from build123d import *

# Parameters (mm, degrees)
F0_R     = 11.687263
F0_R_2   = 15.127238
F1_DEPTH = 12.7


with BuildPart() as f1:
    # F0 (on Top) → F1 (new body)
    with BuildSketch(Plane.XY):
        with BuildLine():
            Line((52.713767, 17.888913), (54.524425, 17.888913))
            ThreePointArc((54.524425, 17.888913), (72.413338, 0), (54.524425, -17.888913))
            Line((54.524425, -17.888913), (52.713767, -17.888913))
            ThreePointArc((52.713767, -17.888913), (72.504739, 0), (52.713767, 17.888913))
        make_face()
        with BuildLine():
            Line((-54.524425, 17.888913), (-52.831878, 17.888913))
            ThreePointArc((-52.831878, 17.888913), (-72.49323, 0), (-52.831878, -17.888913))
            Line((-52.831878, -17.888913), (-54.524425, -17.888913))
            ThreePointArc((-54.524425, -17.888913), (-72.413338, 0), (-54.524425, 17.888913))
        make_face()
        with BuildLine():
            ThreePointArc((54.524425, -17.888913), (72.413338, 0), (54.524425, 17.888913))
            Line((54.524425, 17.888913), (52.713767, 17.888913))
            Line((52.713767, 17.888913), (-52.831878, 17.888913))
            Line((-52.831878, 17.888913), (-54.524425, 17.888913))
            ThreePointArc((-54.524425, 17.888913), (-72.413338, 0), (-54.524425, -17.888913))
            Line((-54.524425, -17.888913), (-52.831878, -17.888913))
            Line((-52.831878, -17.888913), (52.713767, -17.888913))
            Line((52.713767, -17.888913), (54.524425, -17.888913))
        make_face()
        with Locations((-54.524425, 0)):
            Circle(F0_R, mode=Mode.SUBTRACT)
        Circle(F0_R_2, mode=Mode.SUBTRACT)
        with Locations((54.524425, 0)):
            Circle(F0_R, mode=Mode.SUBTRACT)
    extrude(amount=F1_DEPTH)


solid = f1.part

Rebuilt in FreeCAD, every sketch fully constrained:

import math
import FreeCAD as App
import Part
import Sketcher
from FreeCAD import Vector
Q = App.Units.Quantity

doc = App.newDocument("Part")
body = doc.addObject("PartDesign::Body", "Body")

sketch1 = body.newObject("Sketcher::SketchObject", "Sketch")
sketch1.AttachmentSupport = (doc.getObject("XY_Plane"), [""])
sketch1.MapMode = "FlatFace"
sketch1.addGeometry([
    Part.ArcOfCircle(Part.Circle(Vector(54.524425, 0, 0), Vector(0, 0, 1), 17.980314), math.radians(-95.77961), math.radians(95.77961)),
    Part.LineSegment(Vector(52.713767, 17.888913, 0), Vector(-52.831878, 17.888913, 0)),
    Part.ArcOfCircle(Part.Circle(Vector(-54.524426, 0, 0), Vector(0, 0, 1), 17.968804), math.radians(84.595087), math.radians(275.404913)),
    Part.LineSegment(Vector(-52.831878, -17.888913, 0), Vector(52.713767, -17.888913, 0)),
    Part.Circle(Vector(-54.524425, 0, 0), Vector(0, 0, 1), 11.687263),
    Part.Circle(Vector(0, 0, 0), Vector(0, 0, 1), 15.127238),
    Part.Circle(Vector(54.524425, 0, 0), Vector(0, 0, 1), 11.687263),
], False)
sketch1.addConstraint([
    Sketcher.Constraint("Coincident", 0, 2, 1, 1),
    Sketcher.Constraint("Coincident", 1, 2, 2, 1),
    Sketcher.Constraint("Coincident", 2, 2, 3, 1),
    Sketcher.Constraint("Coincident", 3, 2, 0, 1),
    Sketcher.Constraint("Horizontal", 1),
    Sketcher.Constraint("Horizontal", 3),
    Sketcher.Constraint("Coincident", 5, 3, -1, 1),
    Sketcher.Constraint("Coincident", 4, 3, 2, 3),
    Sketcher.Constraint("Coincident", 6, 3, 0, 3),
    Sketcher.Constraint("PointOnObject", 0, 3, -1),
    Sketcher.Constraint("PointOnObject", 2, 3, -1),
    Sketcher.Constraint("Diameter", 4, 23.374526),
    Sketcher.Constraint("Diameter", 5, 30.254476),
    Sketcher.Constraint("Diameter", 6, 23.374526),
    Sketcher.Constraint("Radius", 0, 17.980314),
    Sketcher.Constraint("Radius", 2, 17.968804),
    Sketcher.Constraint("DistanceX", 1, 2, 1, 1, 105.545645),
    Sketcher.Constraint("DistanceX", 3, 1, 3, 2, 105.545645),
    Sketcher.Constraint("DistanceX", 1, 2, -1, 1, 52.831878),
    Sketcher.Constraint("DistanceX", 2, 3, 0, 3, 109.048851),
])
pad1 = body.newObject("PartDesign::Pad", "Pad")
pad1.Profile = sketch1
pad1.Length = Q("0.5 in")

doc.recompute()
